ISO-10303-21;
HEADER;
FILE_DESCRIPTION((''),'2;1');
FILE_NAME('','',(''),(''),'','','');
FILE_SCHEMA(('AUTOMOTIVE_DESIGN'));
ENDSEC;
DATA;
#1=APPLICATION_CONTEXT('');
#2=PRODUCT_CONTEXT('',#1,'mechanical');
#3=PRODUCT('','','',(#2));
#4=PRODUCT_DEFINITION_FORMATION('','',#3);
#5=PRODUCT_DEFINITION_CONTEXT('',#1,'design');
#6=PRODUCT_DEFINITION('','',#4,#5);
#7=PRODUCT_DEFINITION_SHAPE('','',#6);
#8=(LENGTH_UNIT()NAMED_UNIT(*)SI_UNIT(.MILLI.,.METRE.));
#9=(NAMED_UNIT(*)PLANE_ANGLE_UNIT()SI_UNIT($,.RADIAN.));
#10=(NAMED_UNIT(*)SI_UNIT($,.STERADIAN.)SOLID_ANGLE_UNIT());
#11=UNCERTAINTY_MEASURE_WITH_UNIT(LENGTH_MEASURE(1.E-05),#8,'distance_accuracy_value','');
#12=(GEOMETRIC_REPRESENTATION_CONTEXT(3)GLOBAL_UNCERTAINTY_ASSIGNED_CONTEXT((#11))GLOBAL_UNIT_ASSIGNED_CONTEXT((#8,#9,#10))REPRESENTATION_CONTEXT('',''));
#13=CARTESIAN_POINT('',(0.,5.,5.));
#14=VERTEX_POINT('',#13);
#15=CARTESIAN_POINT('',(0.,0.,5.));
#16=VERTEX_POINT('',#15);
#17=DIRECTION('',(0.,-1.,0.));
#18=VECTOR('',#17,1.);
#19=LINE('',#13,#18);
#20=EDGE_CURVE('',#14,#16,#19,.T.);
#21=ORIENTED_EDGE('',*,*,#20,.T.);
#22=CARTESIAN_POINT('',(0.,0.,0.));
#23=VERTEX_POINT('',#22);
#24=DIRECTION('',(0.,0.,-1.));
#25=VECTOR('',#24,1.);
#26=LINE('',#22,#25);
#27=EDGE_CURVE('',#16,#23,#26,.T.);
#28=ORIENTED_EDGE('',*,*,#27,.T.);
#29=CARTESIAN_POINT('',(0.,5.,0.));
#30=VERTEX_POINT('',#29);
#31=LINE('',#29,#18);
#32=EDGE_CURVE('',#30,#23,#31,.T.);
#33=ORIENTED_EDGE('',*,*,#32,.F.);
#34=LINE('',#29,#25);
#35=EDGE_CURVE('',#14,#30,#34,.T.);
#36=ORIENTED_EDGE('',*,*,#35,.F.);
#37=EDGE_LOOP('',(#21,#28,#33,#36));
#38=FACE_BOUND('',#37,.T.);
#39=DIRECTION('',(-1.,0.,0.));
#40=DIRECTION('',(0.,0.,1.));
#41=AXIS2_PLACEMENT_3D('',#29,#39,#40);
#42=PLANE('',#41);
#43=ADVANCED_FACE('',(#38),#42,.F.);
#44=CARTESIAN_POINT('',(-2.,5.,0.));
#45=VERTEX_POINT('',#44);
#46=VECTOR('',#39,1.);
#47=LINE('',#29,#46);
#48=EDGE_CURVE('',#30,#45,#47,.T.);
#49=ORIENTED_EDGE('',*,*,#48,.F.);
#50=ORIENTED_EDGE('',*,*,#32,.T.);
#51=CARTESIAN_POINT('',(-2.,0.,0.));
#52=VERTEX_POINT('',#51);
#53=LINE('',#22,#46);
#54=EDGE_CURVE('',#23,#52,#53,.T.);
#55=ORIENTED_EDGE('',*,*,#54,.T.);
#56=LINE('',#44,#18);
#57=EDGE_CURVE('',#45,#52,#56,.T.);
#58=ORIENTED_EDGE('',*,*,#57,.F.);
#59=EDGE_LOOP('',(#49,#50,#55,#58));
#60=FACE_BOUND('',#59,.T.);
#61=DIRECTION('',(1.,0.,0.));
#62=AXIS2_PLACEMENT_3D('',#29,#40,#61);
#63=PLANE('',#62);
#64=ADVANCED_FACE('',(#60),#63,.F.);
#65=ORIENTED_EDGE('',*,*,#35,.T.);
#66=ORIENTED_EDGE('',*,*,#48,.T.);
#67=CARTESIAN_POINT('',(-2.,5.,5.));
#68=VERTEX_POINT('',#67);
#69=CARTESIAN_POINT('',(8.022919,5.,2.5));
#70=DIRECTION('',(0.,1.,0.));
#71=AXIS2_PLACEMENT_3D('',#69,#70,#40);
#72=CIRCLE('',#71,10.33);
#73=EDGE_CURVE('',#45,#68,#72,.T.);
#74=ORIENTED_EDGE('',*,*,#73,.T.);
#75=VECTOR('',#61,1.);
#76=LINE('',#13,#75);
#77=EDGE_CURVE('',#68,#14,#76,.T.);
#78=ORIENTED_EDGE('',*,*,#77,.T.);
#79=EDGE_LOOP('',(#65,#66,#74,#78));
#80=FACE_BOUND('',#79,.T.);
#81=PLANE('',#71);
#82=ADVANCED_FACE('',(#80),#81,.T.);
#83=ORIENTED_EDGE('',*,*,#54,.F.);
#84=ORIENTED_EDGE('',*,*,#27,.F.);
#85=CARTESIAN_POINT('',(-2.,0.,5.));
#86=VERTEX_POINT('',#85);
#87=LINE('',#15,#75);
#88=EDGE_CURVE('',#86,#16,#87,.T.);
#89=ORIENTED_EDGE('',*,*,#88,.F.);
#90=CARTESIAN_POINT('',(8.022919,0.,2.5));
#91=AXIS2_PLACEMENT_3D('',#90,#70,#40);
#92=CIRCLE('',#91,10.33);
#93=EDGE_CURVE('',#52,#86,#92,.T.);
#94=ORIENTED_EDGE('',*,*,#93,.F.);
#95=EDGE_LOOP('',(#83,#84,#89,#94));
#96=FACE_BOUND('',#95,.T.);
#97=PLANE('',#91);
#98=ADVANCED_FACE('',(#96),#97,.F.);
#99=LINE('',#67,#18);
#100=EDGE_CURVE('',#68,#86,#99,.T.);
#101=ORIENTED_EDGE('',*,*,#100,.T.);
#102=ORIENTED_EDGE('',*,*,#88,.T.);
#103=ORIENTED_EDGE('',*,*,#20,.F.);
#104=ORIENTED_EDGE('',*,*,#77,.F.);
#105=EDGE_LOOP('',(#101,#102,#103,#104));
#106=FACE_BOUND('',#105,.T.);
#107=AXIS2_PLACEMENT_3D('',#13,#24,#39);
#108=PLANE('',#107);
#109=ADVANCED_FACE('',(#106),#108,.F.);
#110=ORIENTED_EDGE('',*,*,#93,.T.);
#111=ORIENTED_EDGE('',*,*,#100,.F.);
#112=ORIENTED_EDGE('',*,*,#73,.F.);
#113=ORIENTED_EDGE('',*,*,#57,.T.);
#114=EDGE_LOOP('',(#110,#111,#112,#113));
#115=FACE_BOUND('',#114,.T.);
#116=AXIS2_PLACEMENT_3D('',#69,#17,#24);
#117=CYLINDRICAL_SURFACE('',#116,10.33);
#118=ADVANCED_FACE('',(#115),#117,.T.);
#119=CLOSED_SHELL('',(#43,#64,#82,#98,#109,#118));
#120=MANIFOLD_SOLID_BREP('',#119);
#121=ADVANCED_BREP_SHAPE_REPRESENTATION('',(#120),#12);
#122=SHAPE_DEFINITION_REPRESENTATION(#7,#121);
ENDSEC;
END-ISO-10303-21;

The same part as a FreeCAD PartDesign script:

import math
import FreeCAD as App
import Part
import Sketcher

V = App.Vector

doc = App.newDocument("Part")
body = doc.addObject("PartDesign::Body", "Body")

# Sketch on XZ plane
sketch1 = body.newObject("Sketcher::SketchObject", "Sketch")
sketch1.AttachmentSupport = (doc.getObject("XZ_Plane"), [""])
sketch1.MapMode = "FlatFace"
sketch1.addGeometry(Part.LineSegment(V(0, 5, 0), V(0, 0, 0)), False)
sketch1.addGeometry(Part.LineSegment(V(0, 0, 0), V(-2, 0, 0)), False)
sketch1.addGeometry(Part.ArcOfCircle(Part.Circle(V(8, 2.5, 0), V(0, 0, 1), 10.3), math.radians(166), math.radians(194)), False)
sketch1.addGeometry(Part.LineSegment(V(-2, 5, 0), V(0, 5, 0)), False)
sketch1.addConstraint(Sketcher.Constraint("Coincident", 0, 2, 1, 1))
sketch1.addConstraint(Sketcher.Constraint("Coincident", 1, 2, 2, 2))
sketch1.addConstraint(Sketcher.Constraint("Coincident", 2, 1, 3, 1))
sketch1.addConstraint(Sketcher.Constraint("Coincident", 3, 2, 0, 1))
sketch1.addConstraint(Sketcher.Constraint("Vertical", 0))
sketch1.addConstraint(Sketcher.Constraint("Horizontal", 1))
sketch1.addConstraint(Sketcher.Constraint("Horizontal", 3))
sketch1.addConstraint(Sketcher.Constraint("Coincident", 0, 2, -1, 1))
sketch1.addConstraint(Sketcher.Constraint("Vertical", 1, 2, 2, 1))
sketch1.addConstraint(Sketcher.Constraint("DistanceX", 1, 2, 1, 1, 2.0))
sketch1.addConstraint(Sketcher.Constraint("DistanceY", 0, 2, 0, 1, 5.0))
sketch1.addConstraint(Sketcher.Constraint("Radius", 2, 10.33))
pad1 = body.newObject("PartDesign::Pad", "Pad")
pad1.Profile = sketch1
pad1.Length = 5
pad1.Reversed = True

doc.recompute()
